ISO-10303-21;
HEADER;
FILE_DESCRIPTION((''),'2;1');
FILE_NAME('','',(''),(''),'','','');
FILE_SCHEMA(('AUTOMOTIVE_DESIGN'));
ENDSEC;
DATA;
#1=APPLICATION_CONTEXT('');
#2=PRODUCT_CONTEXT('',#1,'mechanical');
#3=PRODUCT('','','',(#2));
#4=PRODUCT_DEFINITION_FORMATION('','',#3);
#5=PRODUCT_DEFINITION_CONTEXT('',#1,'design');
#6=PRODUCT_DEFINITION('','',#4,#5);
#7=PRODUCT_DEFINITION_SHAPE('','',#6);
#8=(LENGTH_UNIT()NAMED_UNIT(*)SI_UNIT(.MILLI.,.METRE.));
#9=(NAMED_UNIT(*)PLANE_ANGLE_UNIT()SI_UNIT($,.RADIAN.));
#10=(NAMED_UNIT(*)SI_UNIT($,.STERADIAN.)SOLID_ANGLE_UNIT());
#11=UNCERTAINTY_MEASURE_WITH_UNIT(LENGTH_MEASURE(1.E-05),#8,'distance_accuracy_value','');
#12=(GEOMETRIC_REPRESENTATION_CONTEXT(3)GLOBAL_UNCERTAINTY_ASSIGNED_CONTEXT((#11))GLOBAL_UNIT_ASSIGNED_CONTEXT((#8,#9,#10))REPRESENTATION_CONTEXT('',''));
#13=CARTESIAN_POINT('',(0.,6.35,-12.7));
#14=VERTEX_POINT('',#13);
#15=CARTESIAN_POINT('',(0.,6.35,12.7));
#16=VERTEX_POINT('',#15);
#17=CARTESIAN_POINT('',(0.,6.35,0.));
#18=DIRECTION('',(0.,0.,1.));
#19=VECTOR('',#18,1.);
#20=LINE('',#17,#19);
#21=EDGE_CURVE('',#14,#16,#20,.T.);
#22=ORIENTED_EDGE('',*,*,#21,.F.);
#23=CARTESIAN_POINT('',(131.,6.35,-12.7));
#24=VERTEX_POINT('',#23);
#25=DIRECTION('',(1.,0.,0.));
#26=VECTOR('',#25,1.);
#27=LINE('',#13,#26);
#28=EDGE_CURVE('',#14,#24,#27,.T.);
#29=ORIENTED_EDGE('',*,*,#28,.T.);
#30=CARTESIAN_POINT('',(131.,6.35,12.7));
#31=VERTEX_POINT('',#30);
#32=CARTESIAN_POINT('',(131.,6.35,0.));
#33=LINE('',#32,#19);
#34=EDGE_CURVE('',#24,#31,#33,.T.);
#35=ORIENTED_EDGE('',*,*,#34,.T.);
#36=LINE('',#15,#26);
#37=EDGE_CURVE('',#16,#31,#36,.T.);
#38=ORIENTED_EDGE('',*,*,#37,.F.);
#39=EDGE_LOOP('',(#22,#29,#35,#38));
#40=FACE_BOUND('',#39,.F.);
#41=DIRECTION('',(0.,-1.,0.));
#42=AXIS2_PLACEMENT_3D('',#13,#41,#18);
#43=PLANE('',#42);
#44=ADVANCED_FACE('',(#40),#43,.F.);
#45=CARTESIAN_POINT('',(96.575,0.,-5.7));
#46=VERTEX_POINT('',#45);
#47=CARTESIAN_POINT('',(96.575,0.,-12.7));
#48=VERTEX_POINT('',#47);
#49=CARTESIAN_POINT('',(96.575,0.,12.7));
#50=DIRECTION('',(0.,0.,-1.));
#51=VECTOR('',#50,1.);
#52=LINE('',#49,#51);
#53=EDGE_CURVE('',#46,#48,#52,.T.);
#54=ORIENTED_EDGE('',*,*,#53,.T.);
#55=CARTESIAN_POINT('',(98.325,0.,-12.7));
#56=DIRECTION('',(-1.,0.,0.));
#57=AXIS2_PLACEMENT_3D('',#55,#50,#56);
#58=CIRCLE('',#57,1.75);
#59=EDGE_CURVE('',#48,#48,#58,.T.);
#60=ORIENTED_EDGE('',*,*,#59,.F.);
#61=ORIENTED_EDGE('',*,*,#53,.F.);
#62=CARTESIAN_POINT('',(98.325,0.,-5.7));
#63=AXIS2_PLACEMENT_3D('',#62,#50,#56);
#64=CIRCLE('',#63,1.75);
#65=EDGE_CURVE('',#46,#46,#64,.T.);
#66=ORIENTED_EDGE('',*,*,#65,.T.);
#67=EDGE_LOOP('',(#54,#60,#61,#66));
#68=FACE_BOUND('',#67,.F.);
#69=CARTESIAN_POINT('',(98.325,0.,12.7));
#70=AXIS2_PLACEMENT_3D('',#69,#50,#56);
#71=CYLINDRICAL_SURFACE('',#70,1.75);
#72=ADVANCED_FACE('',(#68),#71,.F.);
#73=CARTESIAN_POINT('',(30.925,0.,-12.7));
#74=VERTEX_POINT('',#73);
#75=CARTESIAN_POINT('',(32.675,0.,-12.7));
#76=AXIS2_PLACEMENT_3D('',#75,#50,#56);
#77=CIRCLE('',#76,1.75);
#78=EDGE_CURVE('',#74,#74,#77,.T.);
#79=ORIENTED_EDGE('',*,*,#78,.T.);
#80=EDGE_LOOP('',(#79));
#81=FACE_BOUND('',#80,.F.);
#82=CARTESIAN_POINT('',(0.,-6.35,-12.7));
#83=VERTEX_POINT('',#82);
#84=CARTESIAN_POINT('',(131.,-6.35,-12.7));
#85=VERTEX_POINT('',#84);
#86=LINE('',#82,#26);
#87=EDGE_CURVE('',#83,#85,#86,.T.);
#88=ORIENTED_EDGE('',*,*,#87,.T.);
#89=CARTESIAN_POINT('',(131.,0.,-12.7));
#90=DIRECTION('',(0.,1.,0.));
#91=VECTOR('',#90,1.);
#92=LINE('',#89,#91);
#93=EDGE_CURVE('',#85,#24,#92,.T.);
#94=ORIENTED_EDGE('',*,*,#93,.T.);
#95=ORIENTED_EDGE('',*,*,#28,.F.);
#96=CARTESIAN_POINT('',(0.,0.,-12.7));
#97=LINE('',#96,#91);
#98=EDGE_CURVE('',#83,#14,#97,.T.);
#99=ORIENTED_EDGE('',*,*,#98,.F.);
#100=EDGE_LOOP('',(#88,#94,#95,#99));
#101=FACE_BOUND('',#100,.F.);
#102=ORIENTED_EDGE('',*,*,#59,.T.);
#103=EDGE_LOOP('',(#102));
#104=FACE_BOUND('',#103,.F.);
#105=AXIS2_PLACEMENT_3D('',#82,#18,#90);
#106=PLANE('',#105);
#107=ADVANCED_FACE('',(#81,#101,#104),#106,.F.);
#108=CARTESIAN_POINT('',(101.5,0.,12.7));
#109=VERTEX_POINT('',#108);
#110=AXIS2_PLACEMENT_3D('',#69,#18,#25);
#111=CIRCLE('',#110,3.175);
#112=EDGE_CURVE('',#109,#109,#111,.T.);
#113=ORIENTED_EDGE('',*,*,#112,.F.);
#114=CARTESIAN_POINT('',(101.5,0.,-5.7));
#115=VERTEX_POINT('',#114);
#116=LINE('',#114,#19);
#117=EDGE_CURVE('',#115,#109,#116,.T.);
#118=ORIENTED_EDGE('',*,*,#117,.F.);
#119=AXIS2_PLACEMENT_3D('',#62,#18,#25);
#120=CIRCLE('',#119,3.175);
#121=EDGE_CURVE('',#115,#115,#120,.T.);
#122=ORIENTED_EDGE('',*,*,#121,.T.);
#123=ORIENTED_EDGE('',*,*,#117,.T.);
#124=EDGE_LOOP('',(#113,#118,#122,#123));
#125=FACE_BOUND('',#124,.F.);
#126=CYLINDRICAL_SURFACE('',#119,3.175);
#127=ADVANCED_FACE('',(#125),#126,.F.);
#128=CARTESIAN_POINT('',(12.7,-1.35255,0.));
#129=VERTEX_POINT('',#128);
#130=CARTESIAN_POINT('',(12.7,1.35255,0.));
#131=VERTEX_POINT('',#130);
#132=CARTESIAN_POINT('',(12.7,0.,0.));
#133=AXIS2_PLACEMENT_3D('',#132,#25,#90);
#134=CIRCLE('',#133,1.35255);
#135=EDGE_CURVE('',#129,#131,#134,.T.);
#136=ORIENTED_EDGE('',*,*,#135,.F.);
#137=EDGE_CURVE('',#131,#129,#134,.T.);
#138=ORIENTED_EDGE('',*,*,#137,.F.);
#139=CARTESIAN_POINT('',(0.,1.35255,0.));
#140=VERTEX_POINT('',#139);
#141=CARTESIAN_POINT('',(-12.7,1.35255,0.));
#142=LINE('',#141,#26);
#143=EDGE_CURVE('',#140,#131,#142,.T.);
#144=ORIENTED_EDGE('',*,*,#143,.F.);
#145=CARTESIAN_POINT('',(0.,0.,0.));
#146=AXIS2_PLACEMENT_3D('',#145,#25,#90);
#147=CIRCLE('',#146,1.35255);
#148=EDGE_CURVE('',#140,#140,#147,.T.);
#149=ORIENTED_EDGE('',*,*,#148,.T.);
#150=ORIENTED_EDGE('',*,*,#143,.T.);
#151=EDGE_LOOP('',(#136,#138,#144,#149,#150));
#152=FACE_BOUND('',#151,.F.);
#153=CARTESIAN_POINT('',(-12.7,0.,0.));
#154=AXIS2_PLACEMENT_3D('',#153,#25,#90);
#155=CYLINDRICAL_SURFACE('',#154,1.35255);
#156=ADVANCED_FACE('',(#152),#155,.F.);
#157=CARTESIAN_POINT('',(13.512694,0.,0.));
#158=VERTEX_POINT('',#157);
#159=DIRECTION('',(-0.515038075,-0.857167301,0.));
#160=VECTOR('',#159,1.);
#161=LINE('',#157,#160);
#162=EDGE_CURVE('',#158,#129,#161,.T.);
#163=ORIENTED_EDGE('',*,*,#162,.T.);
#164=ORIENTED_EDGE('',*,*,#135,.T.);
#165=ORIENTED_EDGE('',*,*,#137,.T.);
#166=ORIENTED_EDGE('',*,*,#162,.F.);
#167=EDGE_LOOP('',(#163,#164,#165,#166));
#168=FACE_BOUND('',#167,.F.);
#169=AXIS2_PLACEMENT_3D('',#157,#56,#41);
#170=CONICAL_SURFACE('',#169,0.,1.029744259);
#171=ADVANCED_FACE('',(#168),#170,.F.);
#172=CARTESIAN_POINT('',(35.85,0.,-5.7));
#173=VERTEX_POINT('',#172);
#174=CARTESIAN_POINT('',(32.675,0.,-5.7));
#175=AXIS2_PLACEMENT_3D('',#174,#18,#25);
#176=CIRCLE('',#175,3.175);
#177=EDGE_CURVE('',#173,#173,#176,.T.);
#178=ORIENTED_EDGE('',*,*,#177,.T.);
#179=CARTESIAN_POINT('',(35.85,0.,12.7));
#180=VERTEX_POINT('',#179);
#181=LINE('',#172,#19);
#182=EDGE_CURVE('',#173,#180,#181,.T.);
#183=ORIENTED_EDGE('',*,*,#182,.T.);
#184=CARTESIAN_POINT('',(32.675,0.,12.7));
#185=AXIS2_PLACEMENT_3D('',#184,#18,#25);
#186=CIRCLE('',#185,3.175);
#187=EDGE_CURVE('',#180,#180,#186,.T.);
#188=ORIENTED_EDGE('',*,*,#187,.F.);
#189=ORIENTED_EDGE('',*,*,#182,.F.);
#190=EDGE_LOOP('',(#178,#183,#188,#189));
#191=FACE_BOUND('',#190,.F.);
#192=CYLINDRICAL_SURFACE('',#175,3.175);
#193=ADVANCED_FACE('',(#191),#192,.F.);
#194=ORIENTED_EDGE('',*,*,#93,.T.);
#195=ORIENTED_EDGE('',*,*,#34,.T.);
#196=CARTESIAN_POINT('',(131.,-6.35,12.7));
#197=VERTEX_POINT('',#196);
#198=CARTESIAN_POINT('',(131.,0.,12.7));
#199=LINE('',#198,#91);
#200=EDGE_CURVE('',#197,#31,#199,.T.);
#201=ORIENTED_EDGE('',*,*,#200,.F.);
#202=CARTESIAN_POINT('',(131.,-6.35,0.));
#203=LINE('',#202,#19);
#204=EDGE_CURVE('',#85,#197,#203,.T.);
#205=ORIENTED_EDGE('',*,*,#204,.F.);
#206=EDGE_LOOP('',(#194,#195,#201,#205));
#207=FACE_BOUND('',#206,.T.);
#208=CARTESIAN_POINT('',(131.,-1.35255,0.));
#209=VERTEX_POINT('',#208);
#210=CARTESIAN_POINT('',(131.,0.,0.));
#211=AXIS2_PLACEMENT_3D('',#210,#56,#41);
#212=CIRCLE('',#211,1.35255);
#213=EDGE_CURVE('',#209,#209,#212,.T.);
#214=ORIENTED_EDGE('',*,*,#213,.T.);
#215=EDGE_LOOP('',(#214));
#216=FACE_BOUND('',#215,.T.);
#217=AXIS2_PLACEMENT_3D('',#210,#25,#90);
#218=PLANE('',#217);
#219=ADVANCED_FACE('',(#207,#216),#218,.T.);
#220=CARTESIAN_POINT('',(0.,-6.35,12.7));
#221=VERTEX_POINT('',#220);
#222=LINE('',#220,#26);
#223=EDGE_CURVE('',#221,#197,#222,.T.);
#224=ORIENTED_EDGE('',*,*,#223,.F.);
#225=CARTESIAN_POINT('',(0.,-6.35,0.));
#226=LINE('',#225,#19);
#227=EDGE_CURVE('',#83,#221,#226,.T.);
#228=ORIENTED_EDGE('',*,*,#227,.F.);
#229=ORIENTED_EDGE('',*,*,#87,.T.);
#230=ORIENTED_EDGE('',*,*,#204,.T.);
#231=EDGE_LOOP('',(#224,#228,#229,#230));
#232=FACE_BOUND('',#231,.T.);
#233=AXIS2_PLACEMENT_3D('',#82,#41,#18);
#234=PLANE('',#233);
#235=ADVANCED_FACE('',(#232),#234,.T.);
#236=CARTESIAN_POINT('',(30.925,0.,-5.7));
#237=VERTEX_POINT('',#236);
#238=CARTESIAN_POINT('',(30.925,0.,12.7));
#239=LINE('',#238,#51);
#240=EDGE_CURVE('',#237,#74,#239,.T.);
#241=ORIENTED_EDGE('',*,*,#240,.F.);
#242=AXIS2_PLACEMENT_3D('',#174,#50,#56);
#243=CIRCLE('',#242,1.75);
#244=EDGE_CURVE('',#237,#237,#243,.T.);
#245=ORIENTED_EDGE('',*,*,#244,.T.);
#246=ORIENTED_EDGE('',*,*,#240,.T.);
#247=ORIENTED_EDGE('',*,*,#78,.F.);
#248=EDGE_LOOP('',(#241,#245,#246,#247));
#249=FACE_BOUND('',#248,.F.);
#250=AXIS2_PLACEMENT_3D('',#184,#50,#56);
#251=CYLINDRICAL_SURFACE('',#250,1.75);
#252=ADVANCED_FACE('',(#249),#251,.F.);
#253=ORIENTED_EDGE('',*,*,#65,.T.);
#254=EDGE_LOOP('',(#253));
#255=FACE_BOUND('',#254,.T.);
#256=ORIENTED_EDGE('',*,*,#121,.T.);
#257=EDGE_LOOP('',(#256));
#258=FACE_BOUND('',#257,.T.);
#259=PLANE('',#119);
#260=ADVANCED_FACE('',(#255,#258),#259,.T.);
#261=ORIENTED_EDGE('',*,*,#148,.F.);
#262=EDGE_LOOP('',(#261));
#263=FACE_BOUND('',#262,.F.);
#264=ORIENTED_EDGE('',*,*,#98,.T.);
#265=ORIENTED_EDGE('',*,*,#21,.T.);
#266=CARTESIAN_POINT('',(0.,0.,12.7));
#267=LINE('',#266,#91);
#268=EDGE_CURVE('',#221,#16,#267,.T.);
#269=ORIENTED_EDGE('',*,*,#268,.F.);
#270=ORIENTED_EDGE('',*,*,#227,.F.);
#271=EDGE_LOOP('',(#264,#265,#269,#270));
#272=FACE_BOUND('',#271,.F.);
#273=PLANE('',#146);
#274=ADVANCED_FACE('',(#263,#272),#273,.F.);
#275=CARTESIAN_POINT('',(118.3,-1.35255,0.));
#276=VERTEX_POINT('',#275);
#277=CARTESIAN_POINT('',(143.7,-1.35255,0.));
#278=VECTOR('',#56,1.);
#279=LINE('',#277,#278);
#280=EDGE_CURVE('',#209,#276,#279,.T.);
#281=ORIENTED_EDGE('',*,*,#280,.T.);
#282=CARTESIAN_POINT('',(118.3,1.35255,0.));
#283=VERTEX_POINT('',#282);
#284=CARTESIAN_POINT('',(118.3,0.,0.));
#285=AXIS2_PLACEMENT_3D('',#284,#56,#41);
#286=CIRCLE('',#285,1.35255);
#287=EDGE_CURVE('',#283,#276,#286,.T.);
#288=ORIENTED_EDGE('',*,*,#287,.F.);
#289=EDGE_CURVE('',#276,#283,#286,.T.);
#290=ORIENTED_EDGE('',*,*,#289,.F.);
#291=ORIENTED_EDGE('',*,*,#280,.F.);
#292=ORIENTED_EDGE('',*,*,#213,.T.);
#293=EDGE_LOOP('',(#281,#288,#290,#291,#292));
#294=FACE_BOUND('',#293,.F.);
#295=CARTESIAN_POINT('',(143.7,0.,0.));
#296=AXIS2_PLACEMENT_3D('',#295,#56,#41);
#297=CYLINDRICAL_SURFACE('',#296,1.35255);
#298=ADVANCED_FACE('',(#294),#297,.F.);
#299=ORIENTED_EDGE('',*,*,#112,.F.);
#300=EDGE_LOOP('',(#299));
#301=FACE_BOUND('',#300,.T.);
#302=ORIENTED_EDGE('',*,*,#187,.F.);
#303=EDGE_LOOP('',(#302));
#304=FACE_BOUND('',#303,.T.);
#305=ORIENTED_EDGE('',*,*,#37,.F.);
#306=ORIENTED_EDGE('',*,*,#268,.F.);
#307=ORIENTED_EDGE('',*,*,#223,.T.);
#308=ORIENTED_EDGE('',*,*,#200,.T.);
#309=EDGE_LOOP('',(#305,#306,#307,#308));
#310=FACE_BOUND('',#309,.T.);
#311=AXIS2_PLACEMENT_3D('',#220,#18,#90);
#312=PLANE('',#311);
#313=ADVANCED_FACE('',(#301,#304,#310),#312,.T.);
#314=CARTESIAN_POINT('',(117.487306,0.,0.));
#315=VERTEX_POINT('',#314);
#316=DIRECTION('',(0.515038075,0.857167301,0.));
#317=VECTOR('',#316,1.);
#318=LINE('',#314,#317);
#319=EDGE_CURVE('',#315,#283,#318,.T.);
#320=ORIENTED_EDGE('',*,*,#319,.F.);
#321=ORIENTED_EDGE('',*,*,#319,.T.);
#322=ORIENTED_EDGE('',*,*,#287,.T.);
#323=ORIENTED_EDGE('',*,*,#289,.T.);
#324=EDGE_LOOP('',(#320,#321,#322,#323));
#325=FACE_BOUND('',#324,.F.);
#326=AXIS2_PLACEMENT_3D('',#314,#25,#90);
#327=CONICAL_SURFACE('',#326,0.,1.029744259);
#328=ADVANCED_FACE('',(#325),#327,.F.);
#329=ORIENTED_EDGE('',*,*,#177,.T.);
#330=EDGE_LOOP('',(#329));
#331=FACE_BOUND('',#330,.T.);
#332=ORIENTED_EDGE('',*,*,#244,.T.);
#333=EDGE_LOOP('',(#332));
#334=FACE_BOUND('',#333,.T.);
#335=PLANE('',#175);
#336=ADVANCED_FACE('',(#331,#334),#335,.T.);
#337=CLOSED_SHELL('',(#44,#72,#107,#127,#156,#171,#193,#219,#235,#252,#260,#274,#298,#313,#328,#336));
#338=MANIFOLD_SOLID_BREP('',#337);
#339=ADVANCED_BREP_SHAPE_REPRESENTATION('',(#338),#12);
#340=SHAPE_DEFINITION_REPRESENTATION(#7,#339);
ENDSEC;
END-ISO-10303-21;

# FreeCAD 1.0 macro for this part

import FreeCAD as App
import Part
import Sketcher
Q = App.Units.Quantity

doc = App.newDocument("Part")
body = doc.addObject("PartDesign::Body", "Body")

sketch1 = body.newObject("Sketcher::SketchObject", "Sketch")
sketch1.AttachmentSupport = (doc.getObject("YZ_Plane"), [""])
sketch1.MapMode = "FlatFace"
sketch1.addGeometry([
    Part.LineSegment(App.Vector(-6, 13, 0), App.Vector(-6, -13, 0)),
    Part.LineSegment(App.Vector(-6, -13, 0), App.Vector(6, -13, 0)),
    Part.LineSegment(App.Vector(6, -13, 0), App.Vector(6, 13, 0)),
    Part.LineSegment(App.Vector(6, 13, 0), App.Vector(-6, 13, 0)),
], False)
sketch1.addConstraint([
    Sketcher.Constraint("Coincident", 0, 2, 1, 1),
    Sketcher.Constraint("Coincident", 1, 2, 2, 1),
    Sketcher.Constraint("Coincident", 2, 2, 3, 1),
    Sketcher.Constraint("Coincident", 3, 2, 0, 1),
    Sketcher.Constraint("Vertical", 0),
    Sketcher.Constraint("Horizontal", 1),
    Sketcher.Constraint("Vertical", 2),
    Sketcher.Constraint("Horizontal", 3),
    Sketcher.Constraint("Symmetric", 0, 2, 2, 2, -1, 1),
    Sketcher.Constraint("DistanceX", 1, 1, 1, 2, Q("12.7 mm")),
    Sketcher.Constraint("DistanceY", 0, 2, 0, 1, Q("25.4 mm")),
])
pad1 = body.newObject("PartDesign::Pad", "Pad")
pad1.Profile = sketch1
pad1.Length = 131

sketch2 = body.newObject("Sketcher::SketchObject", "Sketch001")
sketch2.AttachmentSupport = (doc.getObject("XY_Plane"), [""])
sketch2.MapMode = "FlatFace"
sketch2.AttachmentOffset = App.Placement(App.Vector(0, 0, 12.7), App.Rotation())
sketch2.addGeometry([
    Part.Circle(App.Vector(32.7, 0, 0), App.Vector(0, 0, 1), 1.8),
    Part.Circle(App.Vector(98.3, 0, 0), App.Vector(0, 0, 1), 1.8),
], False)
sketch2.addConstraint([
    Sketcher.Constraint("Equal", 0, 1),
    Sketcher.Constraint("PointOnObject", 0, 3, -1),
    Sketcher.Constraint("PointOnObject", 1, 3, -1),
    Sketcher.Constraint("Diameter", 0, Q("3.5 mm")),
    Sketcher.Constraint("DistanceX", 0, 3, 1, 3, Q("65.65 mm")),
    Sketcher.Constraint("DistanceX", -1, 1, 0, 3, Q("32.675 mm")),
])
doc.recompute()
hole = body.newObject("PartDesign::Hole", "Hole")
hole.Profile = sketch2
hole.ThreadType = "None"
hole.Diameter = 3.5
hole.DepthType = "ThroughAll"
hole.HoleCutType = "Counterbore"
hole.HoleCutDiameter = 6.35
hole.HoleCutDepth = 18.4

sketch3 = body.newObject("Sketcher::SketchObject", "Sketch002")
sketch3.AttachmentSupport = (doc.getObject("YZ_Plane"), [""])
sketch3.MapMode = "FlatFace"
sketch3.AttachmentOffset = App.Placement(App.Vector(0, 0, 131), App.Rotation())
sketch3.addGeometry(Part.Circle(App.Vector(0, 0, 0), App.Vector(0, 0, 1), 1.4), False)
sketch3.addConstraint([
    Sketcher.Constraint("Coincident", 0, 3, -1, 1),
    Sketcher.Constraint("Diameter", 0, Q("2.7051 mm")),
])
doc.recompute()
hole2 = body.newObject("PartDesign::Hole", "Hole001")
hole2.Profile = sketch3
hole2.ThreadType = "None"
hole2.Diameter = 2.7051
hole2.DepthType = "Dimension"
hole2.Depth = 12.7
hole2.DrillPoint = "Angled"
hole2.DrillPointAngle = 118

sketch4 = body.newObject("Sketcher::SketchObject", "Sketch003")
sketch4.AttachmentSupport = (doc.getObject("YZ_Plane"), [""])
sketch4.MapMode = "FlatFace"
sketch4.addGeometry(Part.Circle(App.Vector(0, 0, 0), App.Vector(0, 0, 1), 1.4), False)
sketch4.addConstraint([
    Sketcher.Constraint("Coincident", 0, 3, -1, 1),
    Sketcher.Constraint("Diameter", 0, Q("2.7051 mm")),
])
doc.recompute()
hole3 = body.newObject("PartDesign::Hole", "Hole002")
hole3.Profile = sketch4
hole3.ThreadType = "None"
hole3.Diameter = 2.7051
hole3.DepthType = "Dimension"
hole3.Depth = 12.7
hole3.DrillPoint = "Angled"
hole3.DrillPointAngle = 118
hole3.Reversed = True

doc.recompute()
